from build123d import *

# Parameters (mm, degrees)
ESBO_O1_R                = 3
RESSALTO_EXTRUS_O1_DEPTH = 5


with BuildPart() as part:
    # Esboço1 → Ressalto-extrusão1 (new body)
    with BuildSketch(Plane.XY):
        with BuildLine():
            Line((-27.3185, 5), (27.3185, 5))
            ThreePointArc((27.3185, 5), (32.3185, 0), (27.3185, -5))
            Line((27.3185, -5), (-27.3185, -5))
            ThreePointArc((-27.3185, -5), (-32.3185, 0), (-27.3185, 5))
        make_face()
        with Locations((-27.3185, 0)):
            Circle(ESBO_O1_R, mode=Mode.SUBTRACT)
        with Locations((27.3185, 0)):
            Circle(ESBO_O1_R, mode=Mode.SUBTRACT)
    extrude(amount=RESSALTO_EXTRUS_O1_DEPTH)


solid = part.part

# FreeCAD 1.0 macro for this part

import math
import FreeCAD as App
import Part
import Sketcher
Q = App.Units.Quantity

doc = App.newDocument("Part")
body = doc.addObject("PartDesign::Body", "Body")

# Sketch on XY plane
sketch1 = body.newObject("Sketcher::SketchObject", "Sketch")
sketch1.AttachmentSupport = (doc.getObject("XY_Plane"), [""])
sketch1.MapMode = "FlatFace"
sketch1.addGeometry(Part.LineSegment(App.Vector(27.3, 5, 0), App.Vector(-27.3, 5, 0)), False)
sketch1.addGeometry(Part.ArcOfCircle(Part.Circle(App.Vector(-27.3, 0, 0), App.Vector(0, 0, 1), 5), math.radians(90), math.radians(270)), False)
sketch1.addGeometry(Part.LineSegment(App.Vector(-27.3, -5, 0), App.Vector(27.3, -5, 0)), False)
sketch1.addGeometry(Part.ArcOfCircle(Part.Circle(App.Vector(27.3, 0, 0), App.Vector(0, 0, 1), 5), math.radians(-90), math.radians(90)), False)
sketch1.addGeometry(Part.Circle(App.Vector(27.3, 0, 0), App.Vector(0, 0, 1), 3), False)
sketch1.addGeometry(Part.Circle(App.Vector(-27.3, 0, 0), App.Vector(0, 0, 1), 3), False)
sketch1.addConstraint(Sketcher.Constraint("Tangent", 0, 2, 1, 1))
sketch1.addConstraint(Sketcher.Constraint("Tangent", 1, 2, 2, 1))
sketch1.addConstraint(Sketcher.Constraint("Tangent", 2, 2, 3, 1))
sketch1.addConstraint(Sketcher.Constraint("Tangent", 3, 2, 0, 1))
sketch1.addConstraint(Sketcher.Constraint("Horizontal", 0))
sketch1.addConstraint(Sketcher.Constraint("Horizontal", 2))
sketch1.addConstraint(Sketcher.Constraint("Coincident", 4, 3, 3, 3))
sketch1.addConstraint(Sketcher.Constraint("Coincident", 5, 3, 1, 3))
sketch1.addConstraint(Sketcher.Constraint("Equal", 4, 5))
sketch1.addConstraint(Sketcher.Constraint("Symmetric", 1, 3, 3, 3, -1, 1))
sketch1.addConstraint(Sketcher.Constraint("Diameter", 4, Q("6 mm")))
sketch1.addConstraint(Sketcher.Constraint("Radius", 1, Q("5 mm")))
sketch1.addConstraint(Sketcher.Constraint("DistanceX", 0, 2, 0, 1, Q("54.637 mm")))
pad1 = body.newObject("PartDesign::Pad", "Pad")
pad1.Profile = sketch1
pad1.Length = 5

doc.recompute()
